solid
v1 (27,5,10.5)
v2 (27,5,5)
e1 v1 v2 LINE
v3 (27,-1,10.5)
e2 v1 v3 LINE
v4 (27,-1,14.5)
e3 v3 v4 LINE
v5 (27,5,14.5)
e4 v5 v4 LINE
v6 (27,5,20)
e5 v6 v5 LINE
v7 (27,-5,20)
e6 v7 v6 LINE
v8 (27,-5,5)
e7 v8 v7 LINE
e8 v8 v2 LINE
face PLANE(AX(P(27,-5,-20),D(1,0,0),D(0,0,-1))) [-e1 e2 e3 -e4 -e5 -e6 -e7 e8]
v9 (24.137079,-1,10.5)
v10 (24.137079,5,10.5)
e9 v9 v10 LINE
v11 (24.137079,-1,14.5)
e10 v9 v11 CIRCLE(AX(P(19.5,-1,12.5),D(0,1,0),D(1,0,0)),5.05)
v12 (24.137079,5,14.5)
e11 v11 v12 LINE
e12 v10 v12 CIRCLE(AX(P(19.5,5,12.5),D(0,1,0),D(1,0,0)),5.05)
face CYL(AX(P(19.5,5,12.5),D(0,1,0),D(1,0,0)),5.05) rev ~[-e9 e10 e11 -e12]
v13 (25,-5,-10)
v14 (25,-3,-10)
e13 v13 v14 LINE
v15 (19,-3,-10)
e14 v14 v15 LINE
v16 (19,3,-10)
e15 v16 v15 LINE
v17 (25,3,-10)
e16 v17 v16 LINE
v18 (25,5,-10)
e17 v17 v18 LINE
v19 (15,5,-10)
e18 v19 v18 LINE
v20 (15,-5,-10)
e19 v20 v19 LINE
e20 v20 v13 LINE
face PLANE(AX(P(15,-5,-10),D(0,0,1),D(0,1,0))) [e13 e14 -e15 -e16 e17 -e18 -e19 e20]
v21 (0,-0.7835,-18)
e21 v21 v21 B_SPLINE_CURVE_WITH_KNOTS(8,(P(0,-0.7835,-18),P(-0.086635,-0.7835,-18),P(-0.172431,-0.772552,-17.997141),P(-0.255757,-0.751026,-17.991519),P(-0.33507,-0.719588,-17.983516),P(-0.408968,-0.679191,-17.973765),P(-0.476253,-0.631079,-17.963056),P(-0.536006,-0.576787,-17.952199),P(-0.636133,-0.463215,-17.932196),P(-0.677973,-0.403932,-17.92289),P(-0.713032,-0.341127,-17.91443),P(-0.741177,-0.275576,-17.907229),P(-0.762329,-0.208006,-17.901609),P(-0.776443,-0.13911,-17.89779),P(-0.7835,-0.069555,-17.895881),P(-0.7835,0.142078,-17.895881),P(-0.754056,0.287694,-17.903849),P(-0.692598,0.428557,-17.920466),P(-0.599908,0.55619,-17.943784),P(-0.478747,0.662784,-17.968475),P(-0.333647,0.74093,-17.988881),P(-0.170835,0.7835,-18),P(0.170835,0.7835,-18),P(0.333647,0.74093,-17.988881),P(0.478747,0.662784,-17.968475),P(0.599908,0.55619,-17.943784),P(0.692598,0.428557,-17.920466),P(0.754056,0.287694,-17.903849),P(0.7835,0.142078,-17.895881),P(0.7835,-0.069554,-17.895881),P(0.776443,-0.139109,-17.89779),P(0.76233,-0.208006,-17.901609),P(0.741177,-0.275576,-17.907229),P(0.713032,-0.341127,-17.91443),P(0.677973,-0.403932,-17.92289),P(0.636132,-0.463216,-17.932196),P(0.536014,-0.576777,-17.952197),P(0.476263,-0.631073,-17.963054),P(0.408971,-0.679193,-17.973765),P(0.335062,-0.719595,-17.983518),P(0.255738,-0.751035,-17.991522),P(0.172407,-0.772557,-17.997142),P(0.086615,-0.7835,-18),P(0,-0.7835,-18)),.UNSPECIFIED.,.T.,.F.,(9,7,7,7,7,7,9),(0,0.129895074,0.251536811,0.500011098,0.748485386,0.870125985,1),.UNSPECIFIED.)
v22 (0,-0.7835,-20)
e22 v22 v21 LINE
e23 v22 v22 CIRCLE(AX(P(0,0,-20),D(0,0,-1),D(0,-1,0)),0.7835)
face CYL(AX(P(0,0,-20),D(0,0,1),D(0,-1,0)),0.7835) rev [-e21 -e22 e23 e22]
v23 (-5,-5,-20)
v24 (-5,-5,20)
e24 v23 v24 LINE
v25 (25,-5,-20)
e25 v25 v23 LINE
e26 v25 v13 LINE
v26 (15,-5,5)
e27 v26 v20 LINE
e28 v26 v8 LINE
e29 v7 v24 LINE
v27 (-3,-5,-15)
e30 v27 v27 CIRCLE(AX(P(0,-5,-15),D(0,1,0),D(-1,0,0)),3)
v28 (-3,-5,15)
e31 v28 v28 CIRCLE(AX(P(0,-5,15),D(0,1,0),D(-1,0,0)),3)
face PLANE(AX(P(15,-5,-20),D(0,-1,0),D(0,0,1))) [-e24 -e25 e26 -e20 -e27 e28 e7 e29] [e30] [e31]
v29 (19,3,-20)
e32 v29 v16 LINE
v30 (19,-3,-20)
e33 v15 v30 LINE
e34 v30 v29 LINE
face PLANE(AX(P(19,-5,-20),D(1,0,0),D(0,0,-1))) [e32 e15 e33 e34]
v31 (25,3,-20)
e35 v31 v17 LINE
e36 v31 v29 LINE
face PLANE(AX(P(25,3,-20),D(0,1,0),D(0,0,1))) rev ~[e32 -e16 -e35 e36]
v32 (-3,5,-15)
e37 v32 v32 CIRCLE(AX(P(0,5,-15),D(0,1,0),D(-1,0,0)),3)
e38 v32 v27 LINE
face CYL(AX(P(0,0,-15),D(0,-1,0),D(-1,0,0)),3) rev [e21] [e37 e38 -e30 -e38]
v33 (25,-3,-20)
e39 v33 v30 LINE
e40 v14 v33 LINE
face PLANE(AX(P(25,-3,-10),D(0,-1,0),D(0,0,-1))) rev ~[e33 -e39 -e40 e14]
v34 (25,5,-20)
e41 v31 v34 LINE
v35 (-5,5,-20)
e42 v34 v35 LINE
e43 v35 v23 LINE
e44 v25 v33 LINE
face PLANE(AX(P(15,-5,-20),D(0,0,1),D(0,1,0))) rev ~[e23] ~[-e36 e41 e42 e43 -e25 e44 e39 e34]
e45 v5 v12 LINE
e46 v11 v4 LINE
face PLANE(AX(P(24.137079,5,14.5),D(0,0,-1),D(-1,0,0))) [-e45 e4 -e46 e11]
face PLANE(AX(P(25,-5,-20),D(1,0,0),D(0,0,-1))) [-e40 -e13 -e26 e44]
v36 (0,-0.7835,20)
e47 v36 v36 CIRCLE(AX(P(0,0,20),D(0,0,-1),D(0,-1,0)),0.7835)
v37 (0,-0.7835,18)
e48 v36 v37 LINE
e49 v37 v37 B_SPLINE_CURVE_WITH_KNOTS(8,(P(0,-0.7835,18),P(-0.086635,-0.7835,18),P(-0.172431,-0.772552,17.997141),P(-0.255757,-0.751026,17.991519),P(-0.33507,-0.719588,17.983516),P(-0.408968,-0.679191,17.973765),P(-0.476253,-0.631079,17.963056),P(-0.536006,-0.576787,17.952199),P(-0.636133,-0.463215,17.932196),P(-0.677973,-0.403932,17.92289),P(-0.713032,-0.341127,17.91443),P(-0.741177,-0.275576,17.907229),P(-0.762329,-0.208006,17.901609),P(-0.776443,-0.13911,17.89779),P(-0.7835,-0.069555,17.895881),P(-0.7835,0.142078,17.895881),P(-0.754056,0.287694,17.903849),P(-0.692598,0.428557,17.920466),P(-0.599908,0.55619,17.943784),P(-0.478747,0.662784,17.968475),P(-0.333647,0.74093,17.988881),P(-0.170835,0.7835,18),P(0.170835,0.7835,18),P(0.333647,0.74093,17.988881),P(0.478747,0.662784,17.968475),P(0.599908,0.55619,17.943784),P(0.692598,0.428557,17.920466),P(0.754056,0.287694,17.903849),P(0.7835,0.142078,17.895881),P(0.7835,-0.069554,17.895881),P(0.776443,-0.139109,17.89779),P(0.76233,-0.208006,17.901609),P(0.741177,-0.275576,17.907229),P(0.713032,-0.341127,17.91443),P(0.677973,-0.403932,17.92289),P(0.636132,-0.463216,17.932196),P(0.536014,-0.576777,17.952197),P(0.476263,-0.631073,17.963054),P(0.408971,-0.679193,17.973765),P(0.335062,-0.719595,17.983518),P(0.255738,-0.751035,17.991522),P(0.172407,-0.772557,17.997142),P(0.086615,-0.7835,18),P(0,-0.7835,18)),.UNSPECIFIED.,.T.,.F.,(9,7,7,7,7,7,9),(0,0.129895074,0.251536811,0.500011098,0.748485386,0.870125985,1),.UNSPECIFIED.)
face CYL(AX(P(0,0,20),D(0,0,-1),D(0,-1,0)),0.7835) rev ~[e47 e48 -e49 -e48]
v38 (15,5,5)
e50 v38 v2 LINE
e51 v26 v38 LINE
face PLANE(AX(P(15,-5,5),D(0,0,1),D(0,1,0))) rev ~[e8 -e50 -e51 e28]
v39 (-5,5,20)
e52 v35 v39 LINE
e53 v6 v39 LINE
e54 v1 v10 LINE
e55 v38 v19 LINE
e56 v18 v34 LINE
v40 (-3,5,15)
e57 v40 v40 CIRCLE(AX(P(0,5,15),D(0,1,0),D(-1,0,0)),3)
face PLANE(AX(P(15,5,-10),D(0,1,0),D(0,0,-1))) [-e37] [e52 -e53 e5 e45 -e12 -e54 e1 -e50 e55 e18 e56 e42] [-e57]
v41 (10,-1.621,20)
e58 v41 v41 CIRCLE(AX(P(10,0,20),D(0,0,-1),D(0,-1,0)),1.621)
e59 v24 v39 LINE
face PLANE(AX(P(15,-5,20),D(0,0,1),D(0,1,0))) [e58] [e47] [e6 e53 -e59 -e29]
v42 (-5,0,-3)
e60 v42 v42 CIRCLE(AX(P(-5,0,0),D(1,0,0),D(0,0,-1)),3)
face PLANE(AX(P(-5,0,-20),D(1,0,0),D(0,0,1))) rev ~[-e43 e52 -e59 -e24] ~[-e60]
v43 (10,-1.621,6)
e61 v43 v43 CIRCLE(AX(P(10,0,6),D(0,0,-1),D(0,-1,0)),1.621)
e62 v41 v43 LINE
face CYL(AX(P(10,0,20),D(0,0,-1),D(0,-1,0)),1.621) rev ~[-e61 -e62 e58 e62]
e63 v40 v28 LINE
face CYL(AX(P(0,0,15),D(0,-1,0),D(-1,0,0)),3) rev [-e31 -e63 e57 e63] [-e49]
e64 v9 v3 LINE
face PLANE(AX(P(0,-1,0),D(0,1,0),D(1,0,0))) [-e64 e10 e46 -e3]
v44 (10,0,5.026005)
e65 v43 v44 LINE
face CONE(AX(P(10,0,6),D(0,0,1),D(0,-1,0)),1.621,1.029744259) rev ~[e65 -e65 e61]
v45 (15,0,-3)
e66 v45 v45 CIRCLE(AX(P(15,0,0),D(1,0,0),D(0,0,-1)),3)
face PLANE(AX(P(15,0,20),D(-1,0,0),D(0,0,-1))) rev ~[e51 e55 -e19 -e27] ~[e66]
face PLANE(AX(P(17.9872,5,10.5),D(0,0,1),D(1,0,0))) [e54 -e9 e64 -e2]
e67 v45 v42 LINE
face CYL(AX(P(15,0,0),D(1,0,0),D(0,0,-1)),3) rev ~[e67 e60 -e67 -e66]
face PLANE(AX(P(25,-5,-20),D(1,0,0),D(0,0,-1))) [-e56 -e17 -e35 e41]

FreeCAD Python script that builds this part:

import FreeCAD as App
import Part
import Sketcher
Q = App.Units.Quantity


def add_polygon(sketch, points):
    """Adds a closed chain of lines whose ends are joined by coincident constraints."""
    first, n = sketch.GeometryCount, len(points)
    for a, b in zip(points, points[1:] + points[:1]):
        sketch.addGeometry(Part.LineSegment(App.Vector(*a, 0), App.Vector(*b, 0)), False)
    for i in range(n):
        sketch.addConstraint(Sketcher.Constraint("Coincident", first + i, 2, first + (i + 1) % n, 1))

doc = App.newDocument("Part")
body = doc.addObject("PartDesign::Body", "Body")

# Sketch on XZ plane
sketch1 = body.newObject("Sketcher::SketchObject", "Sketch")
sketch1.AttachmentSupport = (doc.getObject("XZ_Plane"), [""])
sketch1.MapMode = "FlatFace"
add_polygon(sketch1, [(-5, -20), (-5, 20), (15, 20), (15, -20)])  # lines 0-3
sketch1.addGeometry(Part.Circle(App.Vector(0, -15, 0), App.Vector(0, 0, 1), 3), False)  # 4
sketch1.addGeometry(Part.Circle(App.Vector(0, 15, 0), App.Vector(0, 0, 1), 3), False)  # 5
sketch1.addConstraint(Sketcher.Constraint("Vertical", 0))
sketch1.addConstraint(Sketcher.Constraint("Horizontal", 1))
sketch1.addConstraint(Sketcher.Constraint("Vertical", 2))
sketch1.addConstraint(Sketcher.Constraint("Horizontal", 3))
sketch1.addConstraint(Sketcher.Constraint("Equal", 4, 5))
sketch1.addConstraint(Sketcher.Constraint("Symmetric", 4, 3, 5, 3, -1, 1))
sketch1.addConstraint(Sketcher.Constraint("PointOnObject", 4, 3, -2))
sketch1.addConstraint(Sketcher.Constraint("Diameter", 4, Q("6 mm")))
sketch1.addConstraint(Sketcher.Constraint("DistanceY", 0, 1, 0, 2, Q("40 mm")))
sketch1.addConstraint(Sketcher.Constraint("DistanceY", 4, 3, -1, 1, Q("15 mm")))
sketch1.addConstraint(Sketcher.Constraint("DistanceX", 0, 2, -1, 1, Q("5 mm")))
sketch1.addConstraint(Sketcher.Constraint("DistanceX", -1, 1, 1, 2, Q("15 mm")))
sketch1.addConstraint(Sketcher.Constraint("DistanceY", 5, 3, 0, 2, Q("5 mm")))
pad1 = body.newObject("PartDesign::Pad", "Pad")
pad1.Profile = sketch1
pad1.Length = 10
pad1.Midplane = True

# Sketch on YZ plane
sketch2 = body.newObject("Sketcher::SketchObject", "Sketch001")
sketch2.AttachmentSupport = (doc.getObject("YZ_Plane"), [""])
sketch2.MapMode = "FlatFace"
sketch2.AttachmentOffset = App.Placement(App.Vector(0, 0, 15), App.Rotation())
sketch2.addGeometry(Part.Circle(App.Vector(0, 0, 0), App.Vector(0, 0, 1), 3), False)
sketch2.addConstraint(Sketcher.Constraint("Coincident", 0, 3, -1, 1))
sketch2.addConstraint(Sketcher.Constraint("Diameter", 0, Q("6 mm")))
pocket1 = body.newObject("PartDesign::Pocket", "Pocket")
pocket1.Profile = sketch2
pocket1.Type = "ThroughAll"

# Sketch on XY plane
sketch3 = body.newObject("Sketcher::SketchObject", "Sketch002")
sketch3.AttachmentSupport = (doc.getObject("XY_Plane"), [""])
sketch3.MapMode = "FlatFace"
sketch3.AttachmentOffset = App.Placement(App.Vector(0, 0, 20), App.Rotation())
sketch3.addGeometry(Part.Circle(App.Vector(10, 0, 0), App.Vector(0, 0, 1), 1.6), False)
sketch3.addConstraint(Sketcher.Constraint("PointOnObject", 0, 3, -1))
sketch3.addConstraint(Sketcher.Constraint("Diameter", 0, Q("3.242 mm")))
sketch3.addConstraint(Sketcher.Constraint("DistanceX", -1, 1, 0, 3, Q("10 mm")))
doc.recompute()
hole = body.newObject("PartDesign::Hole", "Hole")
hole.Profile = sketch3
hole.ThreadType = "None"
hole.Diameter = 3.242
hole.DepthType = "Dimension"
hole.Depth = 14
hole.DrillPoint = "Angled"
hole.DrillPointAngle = 118

# Sketch on XY plane
sketch4 = body.newObject("Sketcher::SketchObject", "Sketch003")
sketch4.AttachmentSupport = (doc.getObject("XY_Plane"), [""])
sketch4.MapMode = "FlatFace"
sketch4.AttachmentOffset = App.Placement(App.Vector(0, 0, 20), App.Rotation())
sketch4.addGeometry(Part.Circle(App.Vector(0, 0, 0), App.Vector(0, 0, 1), 0.8), False)
sketch4.addConstraint(Sketcher.Constraint("Coincident", 0, 3, -1, 1))
sketch4.addConstraint(Sketcher.Constraint("Diameter", 0, Q("1.567 mm")))
doc.recompute()
hole2 = body.newObject("PartDesign::Hole", "Hole001")
hole2.Profile = sketch4
hole2.ThreadType = "None"
hole2.Diameter = 1.567
hole2.DepthType = "Dimension"
hole2.Depth = 6.3
hole2.DrillPoint = "Angled"
hole2.DrillPointAngle = 118
doc.recompute()

mirrored = body.newObject("PartDesign::Mirrored", "Mirrored")
mirrored.Originals = [hole2]
mirrored.MirrorPlane = (doc.getObject("XY_Plane"), [""])
body.Tip = mirrored

# Sketch on YZ plane
sketch5 = body.newObject("Sketcher::SketchObject", "Sketch004")
sketch5.AttachmentSupport = (doc.getObject("YZ_Plane"), [""])
sketch5.MapMode = "FlatFace"
sketch5.AttachmentOffset = App.Placement(App.Vector(0, 0, 15), App.Rotation())
add_polygon(sketch5, [(-5, 20), (-5, 5), (5, 5), (5, 20)])  # lines 0-3
sketch5.addConstraint(Sketcher.Constraint("Vertical", 0))
sketch5.addConstraint(Sketcher.Constraint("Horizontal", 1))
sketch5.addConstraint(Sketcher.Constraint("Vertical", 2))
sketch5.addConstraint(Sketcher.Constraint("Horizontal", 3))
sketch5.addConstraint(Sketcher.Constraint("DistanceY", 0, 2, 0, 1, Q("15 mm")))
sketch5.addConstraint(Sketcher.Constraint("DistanceX", 1, 1, 1, 2, Q("10 mm")))
sketch5.addConstraint(Sketcher.Constraint("DistanceX", 0, 2, -1, 1, Q("5 mm")))
sketch5.addConstraint(Sketcher.Constraint("DistanceY", -1, 1, 0, 2, Q("5 mm")))
pad2 = body.newObject("PartDesign::Pad", "Pad001")
pad2.Profile = sketch5
pad2.Length = 12

# Sketch on XZ plane
sketch6 = body.newObject("Sketcher::SketchObject", "Sketch005")
sketch6.AttachmentSupport = (doc.getObject("XZ_Plane"), [""])
sketch6.MapMode = "FlatFace"
sketch6.AttachmentOffset = App.Placement(App.Vector(0, 0, -5), App.Rotation())
sketch6.addGeometry(Part.Circle(App.Vector(20, 12, 0), App.Vector(0, 0, 1), 5), False)
sketch6.addConstraint(Sketcher.Constraint("Diameter", 0, Q("10.1 mm")))
sketch6.addConstraint(Sketcher.Constraint("DistanceX", -1, 1, 0, 3, Q("19.5 mm")))
sketch6.addConstraint(Sketcher.Constraint("DistanceY", -1, 1, 0, 3, Q("12.5 mm")))
pocket2 = body.newObject("PartDesign::Pocket", "Pocket001")
pocket2.Profile = sketch6
pocket2.Length = 6
pocket2.Reversed = True

# Sketch on YZ plane
sketch7 = body.newObject("Sketcher::SketchObject", "Sketch006")
sketch7.AttachmentSupport = (doc.getObject("YZ_Plane"), [""])
sketch7.MapMode = "FlatFace"
sketch7.AttachmentOffset = App.Placement(App.Vector(0, 0, 15), App.Rotation())
add_polygon(sketch7, [(5, -20), (5, -10), (-5, -10), (-5, -20)])  # lines 0-3
sketch7.addConstraint(Sketcher.Constraint("Vertical", 0))
sketch7.addConstraint(Sketcher.Constraint("Horizontal", 1))
sketch7.addConstraint(Sketcher.Constraint("Vertical", 2))
sketch7.addConstraint(Sketcher.Constraint("Horizontal", 3))
sketch7.addConstraint(Sketcher.Constraint("Equal", 3, 0))
sketch7.addConstraint(Sketcher.Constraint("DistanceX", 1, 2, 1, 1, Q("10 mm")))
sketch7.addConstraint(Sketcher.Constraint("DistanceY", 0, 2, -1, 1, Q("10 mm")))
sketch7.addConstraint(Sketcher.Constraint("DistanceX", -1, 1, 0, 2, Q("5 mm")))
pad3 = body.newObject("PartDesign::Pad", "Pad002")
pad3.Profile = sketch7
pad3.Length = 10

# Sketch on YZ plane
sketch8 = body.newObject("Sketcher::SketchObject", "Sketch007")
sketch8.AttachmentSupport = (doc.getObject("YZ_Plane"), [""])
sketch8.MapMode = "FlatFace"
sketch8.AttachmentOffset = App.Placement(App.Vector(0, 0, 25), App.Rotation())
add_polygon(sketch8, [(-3, -10), (-3, -20), (3, -20), (3, -10)])  # lines 0-3
sketch8.addConstraint(Sketcher.Constraint("Vertical", 0))
sketch8.addConstraint(Sketcher.Constraint("Horizontal", 1))
sketch8.addConstraint(Sketcher.Constraint("Vertical", 2))
sketch8.addConstraint(Sketcher.Constraint("Horizontal", 3))
sketch8.addConstraint(Sketcher.Constraint("DistanceX", 1, 1, 1, 2, Q("6 mm")))
sketch8.addConstraint(Sketcher.Constraint("DistanceY", 0, 2, 0, 1, Q("10 mm")))
sketch8.addConstraint(Sketcher.Constraint("DistanceX", 0, 2, -1, 1, Q("3 mm")))
sketch8.addConstraint(Sketcher.Constraint("DistanceY", 0, 2, -1, 1, Q("20 mm")))
pocket3 = body.newObject("PartDesign::Pocket", "Pocket002")
pocket3.Profile = sketch8
pocket3.Length = 6

# Sketch on XZ plane
sketch9 = body.newObject("Sketcher::SketchObject", "Sketch008")
sketch9.AttachmentSupport = (doc.getObject("XZ_Plane"), [""])
sketch9.MapMode = "FlatFace"
sketch9.AttachmentOffset = App.Placement(App.Vector(0, 0, -5), App.Rotation())
add_polygon(sketch9, [(18, 14.5), (27, 14.5), (27, 10.5), (18, 10.5)])  # lines 0-3
sketch9.addConstraint(Sketcher.Constraint("Horizontal", 0))
sketch9.addConstraint(Sketcher.Constraint("Vertical", 1))
sketch9.addConstraint(Sketcher.Constraint("Horizontal", 2))
sketch9.addConstraint(Sketcher.Constraint("Vertical", 3))
sketch9.addConstraint(Sketcher.Constraint("DistanceY", 1, 2, 1, 1, Q("4 mm")))
sketch9.addConstraint(Sketcher.Constraint("DistanceX", -1, 1, 0, 2, Q("27 mm")))
sketch9.addConstraint(Sketcher.Constraint("DistanceY", -1, 1, 0, 2, Q("14.5 mm")))
sketch9.addConstraint(Sketcher.Constraint("DistanceX", 0, 1, 0, 2, Q("9.0128 mm")))
pocket4 = body.newObject("PartDesign::Pocket", "Pocket003")
pocket4.Profile = sketch9
pocket4.Length = 6
pocket4.Reversed = True

doc.recompute()
